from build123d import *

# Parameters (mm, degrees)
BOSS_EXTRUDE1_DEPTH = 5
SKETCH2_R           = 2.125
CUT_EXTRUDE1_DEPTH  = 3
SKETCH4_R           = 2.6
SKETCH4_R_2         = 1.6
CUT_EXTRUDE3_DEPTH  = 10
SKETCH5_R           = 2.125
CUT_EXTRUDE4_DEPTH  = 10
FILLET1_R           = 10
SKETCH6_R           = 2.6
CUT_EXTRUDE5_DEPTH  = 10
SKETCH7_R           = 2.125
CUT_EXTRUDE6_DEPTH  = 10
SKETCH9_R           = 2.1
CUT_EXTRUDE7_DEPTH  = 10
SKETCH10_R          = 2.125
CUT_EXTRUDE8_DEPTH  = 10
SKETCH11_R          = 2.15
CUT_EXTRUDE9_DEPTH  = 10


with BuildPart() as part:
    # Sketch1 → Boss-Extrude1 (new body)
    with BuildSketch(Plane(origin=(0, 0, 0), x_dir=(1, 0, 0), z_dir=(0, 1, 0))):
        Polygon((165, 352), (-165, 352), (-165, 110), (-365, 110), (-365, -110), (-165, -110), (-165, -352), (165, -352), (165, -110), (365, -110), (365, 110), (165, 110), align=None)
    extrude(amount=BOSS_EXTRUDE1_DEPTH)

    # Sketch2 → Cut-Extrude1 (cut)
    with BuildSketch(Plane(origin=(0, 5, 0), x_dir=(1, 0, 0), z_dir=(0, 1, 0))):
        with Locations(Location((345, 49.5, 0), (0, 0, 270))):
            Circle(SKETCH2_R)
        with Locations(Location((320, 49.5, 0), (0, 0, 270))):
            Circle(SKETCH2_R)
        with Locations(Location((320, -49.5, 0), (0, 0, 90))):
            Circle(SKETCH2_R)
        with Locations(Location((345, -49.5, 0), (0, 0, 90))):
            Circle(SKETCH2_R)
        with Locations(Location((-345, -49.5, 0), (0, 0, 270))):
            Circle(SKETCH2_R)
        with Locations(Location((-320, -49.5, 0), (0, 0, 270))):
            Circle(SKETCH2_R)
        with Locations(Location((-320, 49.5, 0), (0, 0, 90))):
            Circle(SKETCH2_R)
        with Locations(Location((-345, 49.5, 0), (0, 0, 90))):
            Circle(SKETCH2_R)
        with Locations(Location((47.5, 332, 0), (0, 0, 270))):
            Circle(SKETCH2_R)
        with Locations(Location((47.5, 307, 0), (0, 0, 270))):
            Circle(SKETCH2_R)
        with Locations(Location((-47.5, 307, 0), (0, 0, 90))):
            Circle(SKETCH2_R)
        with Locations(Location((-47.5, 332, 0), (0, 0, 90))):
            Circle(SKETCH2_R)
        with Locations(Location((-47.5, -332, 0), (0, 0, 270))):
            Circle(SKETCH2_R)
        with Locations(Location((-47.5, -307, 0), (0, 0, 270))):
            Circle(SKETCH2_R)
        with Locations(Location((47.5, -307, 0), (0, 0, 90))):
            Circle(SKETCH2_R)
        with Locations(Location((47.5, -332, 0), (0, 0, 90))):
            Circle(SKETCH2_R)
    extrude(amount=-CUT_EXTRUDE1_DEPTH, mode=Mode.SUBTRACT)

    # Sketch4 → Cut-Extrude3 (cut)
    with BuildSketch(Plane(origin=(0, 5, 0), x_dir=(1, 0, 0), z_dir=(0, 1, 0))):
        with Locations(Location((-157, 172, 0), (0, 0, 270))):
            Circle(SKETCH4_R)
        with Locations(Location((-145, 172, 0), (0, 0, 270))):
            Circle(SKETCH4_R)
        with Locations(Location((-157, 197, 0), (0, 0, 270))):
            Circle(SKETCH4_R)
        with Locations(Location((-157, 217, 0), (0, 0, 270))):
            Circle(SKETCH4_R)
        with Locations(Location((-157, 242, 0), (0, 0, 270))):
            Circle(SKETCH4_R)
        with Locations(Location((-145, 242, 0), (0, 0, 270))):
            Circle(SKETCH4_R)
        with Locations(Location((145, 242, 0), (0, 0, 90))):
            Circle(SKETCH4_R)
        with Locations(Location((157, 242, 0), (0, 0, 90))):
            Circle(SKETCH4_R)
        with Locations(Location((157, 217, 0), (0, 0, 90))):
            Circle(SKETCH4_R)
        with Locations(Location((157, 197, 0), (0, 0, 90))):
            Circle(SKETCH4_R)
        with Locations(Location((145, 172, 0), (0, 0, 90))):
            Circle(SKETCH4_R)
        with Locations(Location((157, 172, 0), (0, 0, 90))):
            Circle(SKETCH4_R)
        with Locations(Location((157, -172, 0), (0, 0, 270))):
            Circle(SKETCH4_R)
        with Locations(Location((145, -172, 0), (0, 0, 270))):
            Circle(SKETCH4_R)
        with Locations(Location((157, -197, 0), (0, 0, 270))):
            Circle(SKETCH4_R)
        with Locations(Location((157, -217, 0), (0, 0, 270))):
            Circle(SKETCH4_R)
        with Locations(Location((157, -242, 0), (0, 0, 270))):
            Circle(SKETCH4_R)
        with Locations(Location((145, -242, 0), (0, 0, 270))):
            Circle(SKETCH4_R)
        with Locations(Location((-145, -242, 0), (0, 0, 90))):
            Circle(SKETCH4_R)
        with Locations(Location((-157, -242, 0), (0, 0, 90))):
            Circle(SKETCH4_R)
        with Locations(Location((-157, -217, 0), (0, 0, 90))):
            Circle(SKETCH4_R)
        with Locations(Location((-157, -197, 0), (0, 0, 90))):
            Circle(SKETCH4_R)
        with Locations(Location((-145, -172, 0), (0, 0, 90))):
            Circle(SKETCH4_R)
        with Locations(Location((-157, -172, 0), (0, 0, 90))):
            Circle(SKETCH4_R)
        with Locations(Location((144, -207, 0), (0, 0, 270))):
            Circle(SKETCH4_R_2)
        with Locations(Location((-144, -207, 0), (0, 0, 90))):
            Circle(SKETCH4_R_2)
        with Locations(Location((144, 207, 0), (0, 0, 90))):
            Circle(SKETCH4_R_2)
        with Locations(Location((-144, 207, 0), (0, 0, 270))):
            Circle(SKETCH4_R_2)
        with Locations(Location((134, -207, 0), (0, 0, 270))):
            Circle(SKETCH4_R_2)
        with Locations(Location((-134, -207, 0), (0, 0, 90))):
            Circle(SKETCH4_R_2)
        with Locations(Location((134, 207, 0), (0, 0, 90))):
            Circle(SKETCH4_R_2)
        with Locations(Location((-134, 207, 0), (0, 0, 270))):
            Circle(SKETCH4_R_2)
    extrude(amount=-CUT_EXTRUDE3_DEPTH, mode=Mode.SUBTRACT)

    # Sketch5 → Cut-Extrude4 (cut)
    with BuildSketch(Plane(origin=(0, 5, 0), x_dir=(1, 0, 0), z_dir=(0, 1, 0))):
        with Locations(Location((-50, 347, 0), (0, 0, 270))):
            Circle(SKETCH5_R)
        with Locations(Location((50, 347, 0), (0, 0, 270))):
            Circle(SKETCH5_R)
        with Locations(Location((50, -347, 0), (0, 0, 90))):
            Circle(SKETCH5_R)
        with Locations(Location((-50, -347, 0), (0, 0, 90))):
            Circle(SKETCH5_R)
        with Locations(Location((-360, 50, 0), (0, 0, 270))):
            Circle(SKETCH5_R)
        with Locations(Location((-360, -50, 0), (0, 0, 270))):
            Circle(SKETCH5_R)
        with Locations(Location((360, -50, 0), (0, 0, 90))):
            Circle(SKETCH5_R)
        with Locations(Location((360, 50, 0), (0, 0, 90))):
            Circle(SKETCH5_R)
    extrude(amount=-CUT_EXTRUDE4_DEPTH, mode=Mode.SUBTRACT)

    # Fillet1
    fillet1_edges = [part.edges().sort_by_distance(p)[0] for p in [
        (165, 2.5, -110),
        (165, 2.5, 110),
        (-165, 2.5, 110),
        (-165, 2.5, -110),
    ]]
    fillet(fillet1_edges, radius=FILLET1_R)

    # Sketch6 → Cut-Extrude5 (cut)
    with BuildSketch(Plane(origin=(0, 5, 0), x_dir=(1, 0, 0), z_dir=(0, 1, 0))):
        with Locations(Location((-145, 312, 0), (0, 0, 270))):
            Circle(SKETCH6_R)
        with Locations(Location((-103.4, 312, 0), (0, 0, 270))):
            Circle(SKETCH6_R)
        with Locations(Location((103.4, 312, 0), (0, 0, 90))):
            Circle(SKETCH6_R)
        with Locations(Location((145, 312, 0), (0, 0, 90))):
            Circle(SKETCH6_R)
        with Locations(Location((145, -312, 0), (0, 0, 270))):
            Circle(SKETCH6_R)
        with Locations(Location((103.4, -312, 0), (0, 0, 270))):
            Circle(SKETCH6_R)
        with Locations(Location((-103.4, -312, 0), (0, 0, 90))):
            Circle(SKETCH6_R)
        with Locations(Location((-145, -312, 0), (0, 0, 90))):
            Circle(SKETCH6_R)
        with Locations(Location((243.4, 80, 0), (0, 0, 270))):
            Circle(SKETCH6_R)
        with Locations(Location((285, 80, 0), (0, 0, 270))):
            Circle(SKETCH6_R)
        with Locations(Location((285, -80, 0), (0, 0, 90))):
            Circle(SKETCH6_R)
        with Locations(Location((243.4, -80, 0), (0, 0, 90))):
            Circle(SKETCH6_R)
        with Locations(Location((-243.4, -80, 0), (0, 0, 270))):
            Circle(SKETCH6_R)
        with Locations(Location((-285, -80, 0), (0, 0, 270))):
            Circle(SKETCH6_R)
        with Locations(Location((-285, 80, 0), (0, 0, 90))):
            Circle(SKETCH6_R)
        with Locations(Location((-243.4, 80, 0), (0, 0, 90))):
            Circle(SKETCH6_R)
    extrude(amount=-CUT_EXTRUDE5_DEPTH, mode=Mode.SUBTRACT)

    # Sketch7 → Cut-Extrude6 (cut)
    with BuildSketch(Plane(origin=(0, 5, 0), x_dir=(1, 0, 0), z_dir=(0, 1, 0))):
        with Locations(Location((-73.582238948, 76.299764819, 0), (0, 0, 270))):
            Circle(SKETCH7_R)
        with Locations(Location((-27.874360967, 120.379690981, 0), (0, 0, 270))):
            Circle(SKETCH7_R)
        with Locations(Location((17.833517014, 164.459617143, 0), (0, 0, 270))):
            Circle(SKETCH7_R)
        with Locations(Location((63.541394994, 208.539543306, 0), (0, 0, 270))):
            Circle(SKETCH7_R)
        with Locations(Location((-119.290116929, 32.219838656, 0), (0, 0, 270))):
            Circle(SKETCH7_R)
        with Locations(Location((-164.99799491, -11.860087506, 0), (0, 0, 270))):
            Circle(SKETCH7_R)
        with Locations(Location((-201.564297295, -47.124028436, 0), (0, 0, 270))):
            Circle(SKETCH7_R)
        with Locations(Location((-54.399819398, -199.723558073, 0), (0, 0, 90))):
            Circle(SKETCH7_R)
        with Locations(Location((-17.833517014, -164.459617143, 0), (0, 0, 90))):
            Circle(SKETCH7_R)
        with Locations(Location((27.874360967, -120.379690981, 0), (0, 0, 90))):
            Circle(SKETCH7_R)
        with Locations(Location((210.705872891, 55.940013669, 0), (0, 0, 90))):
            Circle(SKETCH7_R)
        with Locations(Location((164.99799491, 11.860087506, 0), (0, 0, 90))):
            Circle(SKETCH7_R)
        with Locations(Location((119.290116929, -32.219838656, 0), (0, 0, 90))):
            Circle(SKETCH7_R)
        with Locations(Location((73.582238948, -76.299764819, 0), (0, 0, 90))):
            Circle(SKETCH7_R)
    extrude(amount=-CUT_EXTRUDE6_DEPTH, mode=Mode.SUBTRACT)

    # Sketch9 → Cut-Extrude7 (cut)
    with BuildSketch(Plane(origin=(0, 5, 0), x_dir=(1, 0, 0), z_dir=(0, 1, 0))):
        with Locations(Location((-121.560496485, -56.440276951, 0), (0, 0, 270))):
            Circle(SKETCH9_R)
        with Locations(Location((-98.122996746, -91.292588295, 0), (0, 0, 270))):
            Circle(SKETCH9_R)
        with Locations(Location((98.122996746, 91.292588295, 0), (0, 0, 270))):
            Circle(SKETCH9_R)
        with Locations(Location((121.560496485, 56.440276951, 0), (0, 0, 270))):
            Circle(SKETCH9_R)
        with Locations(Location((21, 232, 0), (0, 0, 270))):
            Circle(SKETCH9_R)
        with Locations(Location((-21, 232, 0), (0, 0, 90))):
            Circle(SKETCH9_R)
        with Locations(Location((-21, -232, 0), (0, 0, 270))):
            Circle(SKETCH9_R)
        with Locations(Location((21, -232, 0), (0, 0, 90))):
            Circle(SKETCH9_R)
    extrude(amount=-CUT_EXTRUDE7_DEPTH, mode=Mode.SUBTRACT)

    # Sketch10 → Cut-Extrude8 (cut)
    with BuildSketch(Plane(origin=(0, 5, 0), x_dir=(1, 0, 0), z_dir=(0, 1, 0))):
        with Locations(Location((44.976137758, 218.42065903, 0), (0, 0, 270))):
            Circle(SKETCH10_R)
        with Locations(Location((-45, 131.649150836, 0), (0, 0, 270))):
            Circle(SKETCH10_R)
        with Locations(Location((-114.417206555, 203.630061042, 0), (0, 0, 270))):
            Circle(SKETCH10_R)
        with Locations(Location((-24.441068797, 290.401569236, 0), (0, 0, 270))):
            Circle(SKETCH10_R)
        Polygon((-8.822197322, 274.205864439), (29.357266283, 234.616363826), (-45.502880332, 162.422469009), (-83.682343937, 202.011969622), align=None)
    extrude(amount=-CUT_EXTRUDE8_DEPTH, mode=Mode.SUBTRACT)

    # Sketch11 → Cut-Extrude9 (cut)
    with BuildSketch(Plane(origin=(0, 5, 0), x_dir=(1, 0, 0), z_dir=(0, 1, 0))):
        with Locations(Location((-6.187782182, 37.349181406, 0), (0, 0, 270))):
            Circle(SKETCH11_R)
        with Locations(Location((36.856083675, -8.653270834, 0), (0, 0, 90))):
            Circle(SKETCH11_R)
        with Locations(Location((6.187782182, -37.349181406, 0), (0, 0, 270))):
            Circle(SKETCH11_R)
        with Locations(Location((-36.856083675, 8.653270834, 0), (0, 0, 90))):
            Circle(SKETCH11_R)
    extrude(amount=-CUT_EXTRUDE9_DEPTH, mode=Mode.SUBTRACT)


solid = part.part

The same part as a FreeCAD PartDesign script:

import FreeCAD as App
import Part
import Sketcher
from FreeCAD import Vector


def edges_at(feature, points):
    """Names of the edges that pass closest to the given points."""
    edges = feature.Shape.Edges
    near = lambda p: min(range(len(edges)), key=lambda i: edges[i].distToShape(Part.Vertex(*p))[0])
    return sorted({f"Edge{near(p) + 1}" for p in points})

doc = App.newDocument("Part")
body = doc.addObject("PartDesign::Body", "Body")

sketch1 = doc.addObject("Sketcher::SketchObject", "Sketch")
body.addObject(sketch1)
sketch1.AttachmentSupport = (doc.XZ_Plane, [""])
sketch1.MapMode = "FlatFace"
sketch1.addGeometry([
    Part.LineSegment(Vector(165, -352, 0), Vector(-165, -352, 0)),
    Part.LineSegment(Vector(-165, -352, 0), Vector(-165, -110, 0)),
    Part.LineSegment(Vector(-165, -110, 0), Vector(-365, -110, 0)),
    Part.LineSegment(Vector(-365, -110, 0), Vector(-365, 110, 0)),
    Part.LineSegment(Vector(-365, 110, 0), Vector(-165, 110, 0)),
    Part.LineSegment(Vector(-165, 110, 0), Vector(-165, 352, 0)),
    Part.LineSegment(Vector(-165, 352, 0), Vector(165, 352, 0)),
    Part.LineSegment(Vector(165, 352, 0), Vector(165, 110, 0)),
    Part.LineSegment(Vector(165, 110, 0), Vector(365, 110, 0)),
    Part.LineSegment(Vector(365, 110, 0), Vector(365, -110, 0)),
    Part.LineSegment(Vector(365, -110, 0), Vector(165, -110, 0)),
    Part.LineSegment(Vector(165, -110, 0), Vector(165, -352, 0)),
], False)
sketch1.addConstraint([
    Sketcher.Constraint("Coincident", 0, 2, 1, 1),
    Sketcher.Constraint("Coincident", 1, 2, 2, 1),
    Sketcher.Constraint("Coincident", 2, 2, 3, 1),
    Sketcher.Constraint("Coincident", 3, 2, 4, 1),
    Sketcher.Constraint("Coincident", 4, 2, 5, 1),
    Sketcher.Constraint("Coincident", 5, 2, 6, 1),
    Sketcher.Constraint("Coincident", 6, 2, 7, 1),
    Sketcher.Constraint("Coincident", 7, 2, 8, 1),
    Sketcher.Constraint("Coincident", 8, 2, 9, 1),
    Sketcher.Constraint("Coincident", 9, 2, 10, 1),
    Sketcher.Constraint("Coincident", 10, 2, 11, 1),
    Sketcher.Constraint("Coincident", 11, 2, 0, 1),
    Sketcher.Constraint("Horizontal", 0),
    Sketcher.Constraint("Vertical", 1),
    Sketcher.Constraint("Horizontal", 2),
    Sketcher.Constraint("Vertical", 3),
    Sketcher.Constraint("Horizontal", 4),
    Sketcher.Constraint("Vertical", 5),
    Sketcher.Constraint("Horizontal", 6),
    Sketcher.Constraint("Vertical", 7),
    Sketcher.Constraint("Horizontal", 8),
    Sketcher.Constraint("Vertical", 9),
    Sketcher.Constraint("Horizontal", 10),
    Sketcher.Constraint("Vertical", 11),
    Sketcher.Constraint("Symmetric", 0, 2, 6, 2, -1, 1),
    Sketcher.Constraint("Symmetric", 2, 2, 8, 2, -1, 1),
    Sketcher.Constraint("Symmetric", 4, 2, 10, 2, -1, 1),
    Sketcher.Constraint("Symmetric", 4, 2, 7, 2, -2),
    Sketcher.Constraint("DistanceX", 0, 2, 0, 1, 330.0),
    Sketcher.Constraint("DistanceX", 2, 2, 2, 1, 200.0),
    Sketcher.Constraint("DistanceY", 1, 1, 1, 2, 242.0),
    Sketcher.Constraint("DistanceY", 3, 1, 3, 2, 220.0),
])
pad1 = doc.addObject("PartDesign::Pad", "Pad")
body.addObject(pad1)
pad1.Profile = sketch1
pad1.Length = 5
pad1.Reversed = True

sketch2 = doc.addObject("Sketcher::SketchObject", "Sketch001")
body.addObject(sketch2)
sketch2.AttachmentSupport = (doc.XZ_Plane, [""])
sketch2.MapMode = "FlatFace"
sketch2.AttachmentOffset = App.Placement(Vector(0, 0, -5), App.Rotation())
sketch2.addGeometry([
    Part.Circle(Vector(345, -49.5, 0), Vector(0, 0, 1), 2.1),
    Part.Circle(Vector(320, -49.5, 0), Vector(0, 0, 1), 2.1),
    Part.Circle(Vector(320, 49.5, 0), Vector(0, 0, 1), 2.1),
    Part.Circle(Vector(345, 49.5, 0), Vector(0, 0, 1), 2.1),
    Part.Circle(Vector(-345, 49.5, 0), Vector(0, 0, 1), 2.1),
    Part.Circle(Vector(-320, 49.5, 0), Vector(0, 0, 1), 2.1),
    Part.Circle(Vector(-320, -49.5, 0), Vector(0, 0, 1), 2.1),
    Part.Circle(Vector(-345, -49.5, 0), Vector(0, 0, 1), 2.1),
    Part.Circle(Vector(47.5, -332, 0), Vector(0, 0, 1), 2.1),
    Part.Circle(Vector(47.5, -307, 0), Vector(0, 0, 1), 2.1),
    Part.Circle(Vector(-47.5, -307, 0), Vector(0, 0, 1), 2.1),
    Part.Circle(Vector(-47.5, -332, 0), Vector(0, 0, 1), 2.1),
    Part.Circle(Vector(-47.5, 332, 0), Vector(0, 0, 1), 2.1),
    Part.Circle(Vector(-47.5, 307, 0), Vector(0, 0, 1), 2.1),
    Part.Circle(Vector(47.5, 307, 0), Vector(0, 0, 1), 2.1),
    Part.Circle(Vector(47.5, 332, 0), Vector(0, 0, 1), 2.1),
], False)
sketch2.addConstraint([
    Sketcher.Constraint("Equal", 0, 1),
    Sketcher.Constraint("Equal", 1, 2),
    Sketcher.Constraint("Equal", 2, 3),
    Sketcher.Constraint("Equal", 3, 4),
    Sketcher.Constraint("Equal", 4, 5),
    Sketcher.Constraint("Equal", 5, 6),
    Sketcher.Constraint("Equal", 6, 7),
    Sketcher.Constraint("Equal", 7, 8),
    Sketcher.Constraint("Equal", 8, 9),
    Sketcher.Constraint("Equal", 9, 10),
    Sketcher.Constraint("Equal", 10, 11),
    Sketcher.Constraint("Equal", 11, 12),
    Sketcher.Constraint("Equal", 12, 13),
    Sketcher.Constraint("Equal", 13, 14),
    Sketcher.Constraint("Equal", 14, 15),
    Sketcher.Constraint("Symmetric", 0, 3, 4, 3, -1, 1),
    Sketcher.Constraint("Symmetric", 1, 3, 5, 3, -1, 1),
    Sketcher.Constraint("Symmetric", 2, 3, 6, 3, -1, 1),
    Sketcher.Constraint("Symmetric", 3, 3, 7, 3, -1, 1),
    Sketcher.Constraint("Symmetric", 8, 3, 12, 3, -1, 1),
    Sketcher.Constraint("Symmetric", 9, 3, 13, 3, -1, 1),
    Sketcher.Constraint("Symmetric", 10, 3, 14, 3, -1, 1),
    Sketcher.Constraint("Symmetric", 11, 3, 15, 3, -1, 1),
    Sketcher.Constraint("Symmetric", 3, 3, 4, 3, -2),
    Sketcher.Constraint("Symmetric", 2, 3, 5, 3, -2),
    Sketcher.Constraint("Symmetric", 9, 3, 10, 3, -2),
    Sketcher.Constraint("Symmetric", 8, 3, 11, 3, -2),
    Sketcher.Constraint("Horizontal", 0, 3, 1, 3),
    Sketcher.Constraint("Vertical", 8, 3, 9, 3),
    Sketcher.Constraint("Diameter", 0, 4.25),
    Sketcher.Constraint("DistanceX", -1, 1, 0, 3, 345.0),
    Sketcher.Constraint("DistanceX", -1, 1, 1, 3, 320.0),
    Sketcher.Constraint("DistanceY", 8, 3, -1, 1, 332.0),
    Sketcher.Constraint("DistanceY", 9, 3, -1, 1, 307.0),
    Sketcher.Constraint("DistanceY", 1, 3, 2, 3, 99.0),
    Sketcher.Constraint("DistanceX", 10, 3, 9, 3, 95.0),
])
pocket1 = doc.addObject("PartDesign::Pocket", "Pocket")
body.addObject(pocket1)
pocket1.Profile = sketch2
pocket1.Length = 3
pocket1.Reversed = True

sketch3 = doc.addObject("Sketcher::SketchObject", "Sketch002")
body.addObject(sketch3)
sketch3.AttachmentSupport = (doc.XZ_Plane, [""])
sketch3.MapMode = "FlatFace"
sketch3.AttachmentOffset = App.Placement(Vector(0, 0, -5), App.Rotation())
sketch3.addGeometry([
    Part.Circle(Vector(-157, -172, 0), Vector(0, 0, 1), 2.6),
    Part.Circle(Vector(-145, -172, 0), Vector(0, 0, 1), 2.6),
    Part.Circle(Vector(-157, -197, 0), Vector(0, 0, 1), 2.6),
    Part.Circle(Vector(-157, -217, 0), Vector(0, 0, 1), 2.6),
    Part.Circle(Vector(-157, -242, 0), Vector(0, 0, 1), 2.6),
    Part.Circle(Vector(-145, -242, 0), Vector(0, 0, 1), 2.6),
    Part.Circle(Vector(145, -242, 0), Vector(0, 0, 1), 2.6),
    Part.Circle(Vector(157, -242, 0), Vector(0, 0, 1), 2.6),
    Part.Circle(Vector(157, -217, 0), Vector(0, 0, 1), 2.6),
    Part.Circle(Vector(157, -197, 0), Vector(0, 0, 1), 2.6),
    Part.Circle(Vector(145, -172, 0), Vector(0, 0, 1), 2.6),
    Part.Circle(Vector(157, -172, 0), Vector(0, 0, 1), 2.6),
    Part.Circle(Vector(157, 172, 0), Vector(0, 0, 1), 2.6),
    Part.Circle(Vector(145, 172, 0), Vector(0, 0, 1), 2.6),
    Part.Circle(Vector(157, 197, 0), Vector(0, 0, 1), 2.6),
    Part.Circle(Vector(157, 217, 0), Vector(0, 0, 1), 2.6),
    Part.Circle(Vector(157, 242, 0), Vector(0, 0, 1), 2.6),
    Part.Circle(Vector(145, 242, 0), Vector(0, 0, 1), 2.6),
    Part.Circle(Vector(-145, 242, 0), Vector(0, 0, 1), 2.6),
    Part.Circle(Vector(-157, 242, 0), Vector(0, 0, 1), 2.6),
    Part.Circle(Vector(-157, 217, 0), Vector(0, 0, 1), 2.6),
    Part.Circle(Vector(-157, 197, 0), Vector(0, 0, 1), 2.6),
    Part.Circle(Vector(-145, 172, 0), Vector(0, 0, 1), 2.6),
    Part.Circle(Vector(-157, 172, 0), Vector(0, 0, 1), 2.6),
    Part.Circle(Vector(144, 207, 0), Vector(0, 0, 1), 1.6),
    Part.Circle(Vector(-144, 207, 0), Vector(0, 0, 1), 1.6),
    Part.Circle(Vector(144, -207, 0), Vector(0, 0, 1), 1.6),
    Part.Circle(Vector(-144, -207, 0), Vector(0, 0, 1), 1.6),
    Part.Circle(Vector(134, 207, 0), Vector(0, 0, 1), 1.6),
    Part.Circle(Vector(-134, 207, 0), Vector(0, 0, 1), 1.6),
    Part.Circle(Vector(134, -207, 0), Vector(0, 0, 1), 1.6),
    Part.Circle(Vector(-134, -207, 0), Vector(0, 0, 1), 1.6),
], False)
sketch3.addConstraint([
    Sketcher.Constraint("Equal", 0, 1),
    Sketcher.Constraint("Equal", 1, 2),
    Sketcher.Constraint("Equal", 2, 3),
    Sketcher.Constraint("Equal", 3, 4),
    Sketcher.Constraint("Equal", 4, 5),
    Sketcher.Constraint("Equal", 5, 6),
    Sketcher.Constraint("Equal", 6, 7),
    Sketcher.Constraint("Equal", 7, 8),
    Sketcher.Constraint("Equal", 8, 9),
    Sketcher.Constraint("Equal", 9, 10),
    Sketcher.Constraint("Equal", 10, 11),
    Sketcher.Constraint("Equal", 11, 12),
    Sketcher.Constraint("Equal", 12, 13),
    Sketcher.Constraint("Equal", 13, 14),
    Sketcher.Constraint("Equal", 14, 15),
    Sketcher.Constraint("Equal", 15, 16),
    Sketcher.Constraint("Equal", 16, 17),
    Sketcher.Constraint("Equal", 17, 18),
    Sketcher.Constraint("Equal", 18, 19),
    Sketcher.Constraint("Equal", 19, 20),
    Sketcher.Constraint("Equal", 20, 21),
    Sketcher.Constraint("Equal", 21, 22),
    Sketcher.Constraint("Equal", 22, 23),
    Sketcher.Constraint("Equal", 24, 25),
    Sketcher.Constraint("Equal", 25, 26),
    Sketcher.Constraint("Equal", 26, 27),
    Sketcher.Constraint("Equal", 27, 28),
    Sketcher.Constraint("Equal", 28, 29),
    Sketcher.Constraint("Equal", 29, 30),
    Sketcher.Constraint("Equal", 30, 31),
    Sketcher.Constraint("Symmetric", 0, 3, 12, 3, -1, 1),
    Sketcher.Constraint("Symmetric", 1, 3, 13, 3, -1, 1),
    Sketcher.Constraint("Symmetric", 2, 3, 14, 3, -1, 1),
    Sketcher.Constraint("Symmetric", 3, 3, 15, 3, -1, 1),
    Sketcher.Constraint("Symmetric", 4, 3, 16, 3, -1, 1),
    Sketcher.Constraint("Symmetric", 5, 3, 17, 3, -1, 1),
    Sketcher.Constraint("Symmetric", 6, 3, 18, 3, -1, 1),
    Sketcher.Constraint("Symmetric", 7, 3, 19, 3, -1, 1),
    Sketcher.Constraint("Symmetric", 8, 3, 20, 3, -1, 1),
    Sketcher.Constraint("Symmetric", 9, 3, 21, 3, -1, 1),
    Sketcher.Constraint("Symmetric", 10, 3, 22, 3, -1, 1),
    Sketcher.Constraint("Symmetric", 11, 3, 23, 3, -1, 1),
    Sketcher.Constraint("Symmetric", 25, 3, 26, 3, -1, 1),
    Sketcher.Constraint("Symmetric", 24, 3, 27, 3, -1, 1),
    Sketcher.Constraint("Symmetric", 29, 3, 30, 3, -1, 1),
    Sketcher.Constraint("Symmetric", 28, 3, 31, 3, -1, 1),
    Sketcher.Constraint("Symmetric", 5, 3, 6, 3, -2),
    Sketcher.Constraint("Symmetric", 4, 3, 7, 3, -2),
    Sketcher.Constraint("Symmetric", 3, 3, 8, 3, -2),
    Sketcher.Constraint("Symmetric", 2, 3, 9, 3, -2),
    Sketcher.Constraint("Symmetric", 1, 3, 10, 3, -2),
    Sketcher.Constraint("Symmetric", 0, 3, 11, 3, -2),
    Sketcher.Constraint("Symmetric", 24, 3, 25, 3, -2),
    Sketcher.Constraint("Symmetric", 28, 3, 29, 3, -2),
    Sketcher.Constraint("Horizontal", 0, 3, 1, 3),
    Sketcher.Constraint("Horizontal", 4, 3, 5, 3),
    Sketcher.Constraint("Horizontal", 25, 3, 28, 3),
    Sketcher.Constraint("Vertical", 0, 3, 2, 3),
    Sketcher.Constraint("Vertical", 2, 3, 3, 3),
    Sketcher.Constraint("Vertical", 3, 3, 4, 3),
    Sketcher.Constraint("Vertical", 1, 3, 5, 3),
    Sketcher.Constraint("Diameter", 0, 5.2),
    Sketcher.Constraint("Diameter", 24, 3.2),
    Sketcher.Constraint("DistanceX", 0, 3, -1, 1, 157.0),
    Sketcher.Constraint("DistanceY", 0, 3, -1, 1, 172.0),
    Sketcher.Constraint("DistanceX", 1, 3, -1, 1, 145.0),
    Sketcher.Constraint("DistanceY", 2, 3, -1, 1, 197.0),
    Sketcher.Constraint("DistanceY", 3, 3, -1, 1, 217.0),
    Sketcher.Constraint("DistanceY", 4, 3, -1, 1, 242.0),
    Sketcher.Constraint("DistanceX", -1, 1, 24, 3, 144.0),
    Sketcher.Constraint("DistanceY", -1, 1, 24, 3, 207.0),
    Sketcher.Constraint("DistanceX", -1, 1, 28, 3, 134.0),
])
pocket2 = doc.addObject("PartDesign::Pocket", "Pocket001")
body.addObject(pocket2)
pocket2.Profile = sketch3
pocket2.Length = 10
pocket2.Reversed = True

sketch4 = doc.addObject("Sketcher::SketchObject", "Sketch003")
body.addObject(sketch4)
sketch4.AttachmentSupport = (doc.XZ_Plane, [""])
sketch4.MapMode = "FlatFace"
sketch4.AttachmentOffset = App.Placement(Vector(0, 0, -5), App.Rotation())
sketch4.addGeometry([
    Part.Circle(Vector(-50, -347, 0), Vector(0, 0, 1), 2.1),
    Part.Circle(Vector(50, -347, 0), Vector(0, 0, 1), 2.1),
    Part.Circle(Vector(50, 347, 0), Vector(0, 0, 1), 2.1),
    Part.Circle(Vector(-50, 347, 0), Vector(0, 0, 1), 2.1),
    Part.Circle(Vector(-360, -50, 0), Vector(0, 0, 1), 2.1),
    Part.Circle(Vector(-360, 50, 0), Vector(0, 0, 1), 2.1),
    Part.Circle(Vector(360, 50, 0), Vector(0, 0, 1), 2.1),
    Part.Circle(Vector(360, -50, 0), Vector(0, 0, 1), 2.1),
], False)
sketch4.addConstraint([
    Sketcher.Constraint("Equal", 0, 1),
    Sketcher.Constraint("Equal", 1, 2),
    Sketcher.Constraint("Equal", 2, 3),
    Sketcher.Constraint("Equal", 3, 4),
    Sketcher.Constraint("Equal", 4, 5),
    Sketcher.Constraint("Equal", 5, 6),
    Sketcher.Constraint("Equal", 6, 7),
    Sketcher.Constraint("Symmetric", 0, 3, 2, 3, -1, 1),
    Sketcher.Constraint("Symmetric", 1, 3, 3, 3, -1, 1),
    Sketcher.Constraint("Symmetric", 4, 3, 6, 3, -1, 1),
    Sketcher.Constraint("Symmetric", 5, 3, 7, 3, -1, 1),
    Sketcher.Constraint("Symmetric", 0, 3, 1, 3, -2),
    Sketcher.Constraint("Symmetric", 5, 3, 6, 3, -2),
    Sketcher.Constraint("Diameter", 0, 4.25),
    Sketcher.Constraint("DistanceX", 0, 3, -1, 1, 50.0),
    Sketcher.Constraint("DistanceY", 0, 3, -1, 1, 347.0),
    Sketcher.Constraint("DistanceX", 4, 3, -1, 1, 360.0),
    Sketcher.Constraint("DistanceY", 4, 3, -1, 1, 50.0),
])
pocket3 = doc.addObject("PartDesign::Pocket", "Pocket002")
body.addObject(pocket3)
pocket3.Profile = sketch4
pocket3.Length = 10
pocket3.Reversed = True
doc.recompute()

fillet = doc.addObject("PartDesign::Fillet", "Fillet")
body.addObject(fillet)
fillet.Base = (pocket3, edges_at(pocket3, [
    (165, 2.5, -110),
    (165, 2.5, 110),
    (-165, 2.5, 110),
    (-165, 2.5, -110),
]))
fillet.Radius = 10

sketch5 = doc.addObject("Sketcher::SketchObject", "Sketch004")
body.addObject(sketch5)
sketch5.AttachmentSupport = (doc.XZ_Plane, [""])
sketch5.MapMode = "FlatFace"
sketch5.AttachmentOffset = App.Placement(Vector(0, 0, -5), App.Rotation())
sketch5.addGeometry([
    Part.Circle(Vector(-145, -312, 0), Vector(0, 0, 1), 2.6),
    Part.Circle(Vector(-103.4, -312, 0), Vector(0, 0, 1), 2.6),
    Part.Circle(Vector(103.4, -312, 0), Vector(0, 0, 1), 2.6),
    Part.Circle(Vector(145, -312, 0), Vector(0, 0, 1), 2.6),
    Part.Circle(Vector(145, 312, 0), Vector(0, 0, 1), 2.6),
    Part.Circle(Vector(103.4, 312, 0), Vector(0, 0, 1), 2.6),
    Part.Circle(Vector(-103.4, 312, 0), Vector(0, 0, 1), 2.6),
    Part.Circle(Vector(-145, 312, 0), Vector(0, 0, 1), 2.6),
    Part.Circle(Vector(243.4, -80, 0), Vector(0, 0, 1), 2.6),
    Part.Circle(Vector(285, -80, 0), Vector(0, 0, 1), 2.6),
    Part.Circle(Vector(285, 80, 0), Vector(0, 0, 1), 2.6),
    Part.Circle(Vector(243.4, 80, 0), Vector(0, 0, 1), 2.6),
    Part.Circle(Vector(-243.4, 80, 0), Vector(0, 0, 1), 2.6),
    Part.Circle(Vector(-285, 80, 0), Vector(0, 0, 1), 2.6),
    Part.Circle(Vector(-285, -80, 0), Vector(0, 0, 1), 2.6),
    Part.Circle(Vector(-243.4, -80, 0), Vector(0, 0, 1), 2.6),
], False)
sketch5.addConstraint([
    Sketcher.Constraint("Equal", 0, 1),
    Sketcher.Constraint("Equal", 1, 2),
    Sketcher.Constraint("Equal", 2, 3),
    Sketcher.Constraint("Equal", 3, 4),
    Sketcher.Constraint("Equal", 4, 5),
    Sketcher.Constraint("Equal", 5, 6),
    Sketcher.Constraint("Equal", 6, 7),
    Sketcher.Constraint("Equal", 7, 8),
    Sketcher.Constraint("Equal", 8, 9),
    Sketcher.Constraint("Equal", 9, 10),
    Sketcher.Constraint("Equal", 10, 11),
    Sketcher.Constraint("Equal", 11, 12),
    Sketcher.Constraint("Equal", 12, 13),
    Sketcher.Constraint("Equal", 13, 14),
    Sketcher.Constraint("Equal", 14, 15),
    Sketcher.Constraint("Symmetric", 0, 3, 4, 3, -1, 1),
    Sketcher.Constraint("Symmetric", 1, 3, 5, 3, -1, 1),
    Sketcher.Constraint("Symmetric", 2, 3, 6, 3, -1, 1),
    Sketcher.Constraint("Symmetric", 3, 3, 7, 3, -1, 1),
    Sketcher.Constraint("Symmetric", 8, 3, 12, 3, -1, 1),
    Sketcher.Constraint("Symmetric", 9, 3, 13, 3, -1, 1),
    Sketcher.Constraint("Symmetric", 10, 3, 14, 3, -1, 1),
    Sketcher.Constraint("Symmetric", 11, 3, 15, 3, -1, 1),
    Sketcher.Constraint("Symmetric", 1, 3, 2, 3, -2),
    Sketcher.Constraint("Symmetric", 0, 3, 3, 3, -2),
    Sketcher.Constraint("Symmetric", 11, 3, 12, 3, -2),
    Sketcher.Constraint("Symmetric", 10, 3, 13, 3, -2),
    Sketcher.Constraint("Horizontal", 0, 3, 1, 3),
    Sketcher.Constraint("Horizontal", 8, 3, 9, 3),
    Sketcher.Constraint("Diameter", 0, 5.2),
    Sketcher.Constraint("DistanceX", 0, 3, -1, 1, 145.0),
    Sketcher.Constraint("DistanceY", 0, 3, -1, 1, 312.0),
    Sketcher.Constraint("DistanceY", 8, 3, -1, 1, 80.0),
    Sketcher.Constraint("DistanceX", -1, 1, 9, 3, 285.0),
    Sketcher.Constraint("DistanceX", 2, 3, 8, 3, 140.0),
    Sketcher.Constraint("DistanceX", 1, 3, -1, 1, 103.4),
])
pocket4 = doc.addObject("PartDesign::Pocket", "Pocket003")
body.addObject(pocket4)
pocket4.Profile = sketch5
pocket4.Length = 10
pocket4.Reversed = True

sketch6 = doc.addObject("Sketcher::SketchObject", "Sketch005")
body.addObject(sketch6)
sketch6.AttachmentSupport = (doc.XZ_Plane, [""])
sketch6.MapMode = "FlatFace"
sketch6.AttachmentOffset = App.Placement(Vector(0, 0, -5), App.Rotation())
sketch6.addGeometry([
    Part.Circle(Vector(-73.6, -76.3, 0), Vector(0, 0, 1), 2.1),
    Part.Circle(Vector(-27.9, -120.4, 0), Vector(0, 0, 1), 2.1),
    Part.Circle(Vector(17.8, -164.5, 0), Vector(0, 0, 1), 2.1),
    Part.Circle(Vector(63.5, -208.5, 0), Vector(0, 0, 1), 2.1),
    Part.Circle(Vector(-119.3, -32.2, 0), Vector(0, 0, 1), 2.1),
    Part.Circle(Vector(-165, 11.9, 0), Vector(0, 0, 1), 2.1),
    Part.Circle(Vector(-201.6, 47.1, 0), Vector(0, 0, 1), 2.1),
    Part.Circle(Vector(-54.4, 199.7, 0), Vector(0, 0, 1), 2.1),
    Part.Circle(Vector(-17.8, 164.5, 0), Vector(0, 0, 1), 2.1),
    Part.Circle(Vector(27.9, 120.4, 0), Vector(0, 0, 1), 2.1),
    Part.Circle(Vector(210.7, -55.9, 0), Vector(0, 0, 1), 2.1),
    Part.Circle(Vector(165, -11.9, 0), Vector(0, 0, 1), 2.1),
    Part.Circle(Vector(119.3, 32.2, 0), Vector(0, 0, 1), 2.1),
    Part.Circle(Vector(73.6, 76.3, 0), Vector(0, 0, 1), 2.1),
], False)
sketch6.addConstraint([
    Sketcher.Constraint("Equal", 0, 1),
    Sketcher.Constraint("Equal", 1, 2),
    Sketcher.Constraint("Equal", 2, 3),
    Sketcher.Constraint("Equal", 3, 4),
    Sketcher.Constraint("Equal", 4, 5),
    Sketcher.Constraint("Equal", 5, 6),
    Sketcher.Constraint("Equal", 6, 7),
    Sketcher.Constraint("Equal", 7, 8),
    Sketcher.Constraint("Equal", 8, 9),
    Sketcher.Constraint("Equal", 9, 10),
    Sketcher.Constraint("Equal", 10, 11),
    Sketcher.Constraint("Equal", 11, 12),
    Sketcher.Constraint("Equal", 12, 13),
    Sketcher.Constraint("Symmetric", 2, 3, 8, 3, -1, 1),
    Sketcher.Constraint("Symmetric", 1, 3, 9, 3, -1, 1),
    Sketcher.Constraint("Symmetric", 5, 3, 11, 3, -1, 1),
    Sketcher.Constraint("Symmetric", 4, 3, 12, 3, -1, 1),
    Sketcher.Constraint("Symmetric", 0, 3, 13, 3, -1, 1),
    Sketcher.Constraint("Diameter", 0, 4.25),
    Sketcher.Constraint("DistanceX", 4, 3, 8, 3, 101.4566),
    Sketcher.Constraint("DistanceX", 0, 3, 9, 3, 101.4566),
    Sketcher.Constraint("DistanceX", 3, 3, 11, 3, 101.4566),
    Sketcher.Constraint("DistanceX", 0, 3, -1, 1, 73.582239),
    Sketcher.Constraint("DistanceY", 1, 3, -1, 1, 120.379691),
    Sketcher.Constraint("DistanceY", 4, 3, -1, 1, 32.219839),
    Sketcher.Constraint("DistanceY", -1, 1, 6, 3, 47.124028),
    Sketcher.Constraint("DistanceX", 7, 3, -1, 1, 54.399819),
    Sketcher.Constraint("DistanceY", -1, 1, 7, 3, 199.723558),
    Sketcher.Constraint("DistanceY", 3, 3, 0, 3, 132.239778),
    Sketcher.Constraint("DistanceY", 2, 3, 4, 3, 132.239778),
    Sketcher.Constraint("DistanceX", 4, 3, 3, 3, 182.831512),
    Sketcher.Constraint("DistanceY", 1, 3, 5, 3, 132.239778),
    Sketcher.Constraint("DistanceX", 5, 3, 3, 3, 228.53939),
    Sketcher.Constraint("DistanceY", 3, 3, 5, 3, 220.399631),
    Sketcher.Constraint("DistanceX", 6, 3, 4, 3, 82.27418),
    Sketcher.Constraint("DistanceY", 3, 3, 10, 3, 152.59953),
    Sketcher.Constraint("DistanceX", 9, 3, 10, 3, 182.831512),
])
pocket5 = doc.addObject("PartDesign::Pocket", "Pocket004")
body.addObject(pocket5)
pocket5.Profile = sketch6
pocket5.Length = 10
pocket5.Reversed = True

sketch7 = doc.addObject("Sketcher::SketchObject", "Sketch006")
body.addObject(sketch7)
sketch7.AttachmentSupport = (doc.XZ_Plane, [""])
sketch7.MapMode = "FlatFace"
sketch7.AttachmentOffset = App.Placement(Vector(0, 0, -5), App.Rotation())
sketch7.addGeometry([
    Part.Circle(Vector(-121.6, 56.4, 0), Vector(0, 0, 1), 2.1),
    Part.Circle(Vector(-98.1, 91.3, 0), Vector(0, 0, 1), 2.1),
    Part.Circle(Vector(98.1, -91.3, 0), Vector(0, 0, 1), 2.1),
    Part.Circle(Vector(121.6, -56.4, 0), Vector(0, 0, 1), 2.1),
    Part.Circle(Vector(21, -232, 0), Vector(0, 0, 1), 2.1),
    Part.Circle(Vector(-21, -232, 0), Vector(0, 0, 1), 2.1),
    Part.Circle(Vector(-21, 232, 0), Vector(0, 0, 1), 2.1),
    Part.Circle(Vector(21, 232, 0), Vector(0, 0, 1), 2.1),
], False)
sketch7.addConstraint([
    Sketcher.Constraint("Equal", 0, 1),
    Sketcher.Constraint("Equal", 1, 2),
    Sketcher.Constraint("Equal", 2, 3),
    Sketcher.Constraint("Equal", 3, 4),
    Sketcher.Constraint("Equal", 4, 5),
    Sketcher.Constraint("Equal", 5, 6),
    Sketcher.Constraint("Equal", 6, 7),
    Sketcher.Constraint("Symmetric", 1, 3, 2, 3, -1, 1),
    Sketcher.Constraint("Symmetric", 0, 3, 3, 3, -1, 1),
    Sketcher.Constraint("Symmetric", 4, 3, 6, 3, -1, 1),
    Sketcher.Constraint("Symmetric", 5, 3, 7, 3, -1, 1),
    Sketcher.Constraint("Symmetric", 4, 3, 5, 3, -2),
    Sketcher.Constraint("Diameter", 0, 4.2),
    Sketcher.Constraint("DistanceX", -1, 1, 4, 3, 21.0),
    Sketcher.Constraint("DistanceY", 4, 3, -1, 1, 232.0),
    Sketcher.Constraint("DistanceX", 0, 3, 1, 3, 23.4375),
    Sketcher.Constraint("DistanceY", -1, 1, 1, 3, 91.292588),
    Sketcher.Constraint("DistanceY", 0, 3, 1, 3, 34.852311),
    Sketcher.Constraint("DistanceX", 0, 3, -1, 1, 121.560496),
])
pocket6 = doc.addObject("PartDesign::Pocket", "Pocket005")
body.addObject(pocket6)
pocket6.Profile = sketch7
pocket6.Length = 10
pocket6.Reversed = True

sketch8 = doc.addObject("Sketcher::SketchObject", "Sketch007")
body.addObject(sketch8)
sketch8.AttachmentSupport = (doc.XZ_Plane, [""])
sketch8.MapMode = "FlatFace"
sketch8.AttachmentOffset = App.Placement(Vector(0, 0, -5), App.Rotation())
sketch8.addGeometry([
    Part.Circle(Vector(45, -218.4, 0), Vector(0, 0, 1), 2.1),
    Part.Circle(Vector(-45, -131.6, 0), Vector(0, 0, 1), 2.1),
    Part.Circle(Vector(-114.4, -203.6, 0), Vector(0, 0, 1), 2.1),
    Part.Circle(Vector(-24.4, -290.4, 0), Vector(0, 0, 1), 2.1),
    Part.LineSegment(Vector(29.4, -234.6, 0), Vector(-8.8, -274.2, 0)),
    Part.LineSegment(Vector(-8.8, -274.2, 0), Vector(-83.7, -202, 0)),
    Part.LineSegment(Vector(-83.7, -202, 0), Vector(-45.5, -162.4, 0)),
    Part.LineSegment(Vector(-45.5, -162.4, 0), Vector(29.4, -234.6, 0)),
], False)
sketch8.addConstraint([
    Sketcher.Constraint("Coincident", 4, 2, 5, 1),
    Sketcher.Constraint("Coincident", 5, 2, 6, 1),
    Sketcher.Constraint("Coincident", 6, 2, 7, 1),
    Sketcher.Constraint("Coincident", 7, 2, 4, 1),
    Sketcher.Constraint("Equal", 0, 1),
    Sketcher.Constraint("Equal", 1, 2),
    Sketcher.Constraint("Equal", 2, 3),
    Sketcher.Constraint("Perpendicular", 4, 5),
    Sketcher.Constraint("Perpendicular", 5, 6),
    Sketcher.Constraint("Perpendicular", 6, 7),
    Sketcher.Constraint("Diameter", 0, 4.25),
    Sketcher.Constraint("Distance", 4, 55.0),
    Sketcher.Constraint("Distance", 5, 104.0),
    Sketcher.Constraint("DistanceX", 1, 3, -1, 1, 45.0),
    Sketcher.Constraint("DistanceY", 3, 3, 5, 2, 88.3896),
    Sketcher.Constraint("DistanceY", 5, 2, 6, 2, 39.589501),
    Sketcher.Constraint("DistanceY", 0, 3, -1, 1, 218.420659),
    Sketcher.Constraint("DistanceY", 1, 3, -1, 1, 131.649151),
    Sketcher.Constraint("DistanceY", 2, 3, -1, 1, 203.630061),
    Sketcher.Constraint("DistanceX", 3, 3, -1, 1, 24.441069),
    Sketcher.Constraint("DistanceY", 3, 3, -1, 1, 290.401569),
    Sketcher.Constraint("DistanceX", 6, 2, -1, 1, 45.50288),
    Sketcher.Constraint("DistanceX", 2, 3, 4, 2, 105.595009),
    Sketcher.Constraint("DistanceX", 5, 2, 0, 3, 128.658482),
])
pocket7 = doc.addObject("PartDesign::Pocket", "Pocket006")
body.addObject(pocket7)
pocket7.Profile = sketch8
pocket7.Length = 10
pocket7.Reversed = True

sketch9 = doc.addObject("Sketcher::SketchObject", "Sketch008")
body.addObject(sketch9)
sketch9.AttachmentSupport = (doc.XZ_Plane, [""])
sketch9.MapMode = "FlatFace"
sketch9.AttachmentOffset = App.Placement(Vector(0, 0, -5), App.Rotation())
sketch9.addGeometry([
    Part.Circle(Vector(-6.2, -37.3, 0), Vector(0, 0, 1), 2.1),
    Part.Circle(Vector(36.9, 8.7, 0), Vector(0, 0, 1), 2.1),
    Part.Circle(Vector(6.2, 37.3, 0), Vector(0, 0, 1), 2.1),
    Part.Circle(Vector(-36.9, -8.7, 0), Vector(0, 0, 1), 2.1),
], False)
sketch9.addConstraint([
    Sketcher.Constraint("Equal", 0, 1),
    Sketcher.Constraint("Equal", 1, 2),
    Sketcher.Constraint("Equal", 2, 3),
    Sketcher.Constraint("Symmetric", 0, 3, 2, 3, -1, 1),
    Sketcher.Constraint("Symmetric", 1, 3, 3, 3, -1, 1),
    Sketcher.Constraint("Diameter", 0, 4.3),
    Sketcher.Constraint("DistanceX", 2, 3, 1, 3, 30.668301),
    Sketcher.Constraint("DistanceY", 0, 3, -1, 1, 37.349181),
    Sketcher.Constraint("DistanceY", -1, 1, 1, 3, 8.653271),
    Sketcher.Constraint("DistanceX", 0, 3, -1, 1, 6.187782),
])
pocket8 = doc.addObject("PartDesign::Pocket", "Pocket007")
body.addObject(pocket8)
pocket8.Profile = sketch9
pocket8.Length = 10
pocket8.Reversed = True

doc.recompute()
